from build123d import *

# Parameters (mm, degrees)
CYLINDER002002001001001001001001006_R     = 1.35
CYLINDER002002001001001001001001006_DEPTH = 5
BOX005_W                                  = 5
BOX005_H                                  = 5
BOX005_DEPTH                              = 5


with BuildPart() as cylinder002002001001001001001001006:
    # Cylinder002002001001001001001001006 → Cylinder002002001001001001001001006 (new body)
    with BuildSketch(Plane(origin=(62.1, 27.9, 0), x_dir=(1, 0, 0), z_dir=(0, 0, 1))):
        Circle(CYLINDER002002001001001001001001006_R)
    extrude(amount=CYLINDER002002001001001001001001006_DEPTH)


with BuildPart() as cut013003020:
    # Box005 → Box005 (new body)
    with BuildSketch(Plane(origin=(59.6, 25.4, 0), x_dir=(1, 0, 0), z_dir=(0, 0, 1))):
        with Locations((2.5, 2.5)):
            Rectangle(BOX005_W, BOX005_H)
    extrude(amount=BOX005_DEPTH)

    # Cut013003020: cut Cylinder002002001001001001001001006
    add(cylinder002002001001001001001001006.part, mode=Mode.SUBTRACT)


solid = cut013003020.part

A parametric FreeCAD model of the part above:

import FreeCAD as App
import Part
import Sketcher

V = App.Vector
Q = App.Units.Quantity


def add_polygon(sketch, points):
    """Adds a closed chain of lines whose ends are joined by coincident constraints."""
    first, n = sketch.GeometryCount, len(points)
    for a, b in zip(points, points[1:] + points[:1]):
        sketch.addGeometry(Part.LineSegment(App.Vector(*a, 0), App.Vector(*b, 0)), False)
    for i in range(n):
        sketch.addConstraint(Sketcher.Constraint("Coincident", first + i, 2, first + (i + 1) % n, 1))

doc = App.newDocument("Part")
params = doc.addObject("Spreadsheet::Sheet", "Params")
for row, (alias, value) in enumerate([
    ("sketch1_diameter", "2.7 mm"),
    ("pad1_length", "5 mm"),
    ("sketch2_width", "5 mm"),
    ("pad2_length", "5 mm"),
], start=1):
    params.set(f"A{row}", alias)
    params.set(f"B{row}", "=" + value)
    params.setAlias(f"B{row}", alias)

body = doc.addObject("PartDesign::Body", "Body")

# Sketch on XY plane
sketch1 = body.newObject("Sketcher::SketchObject", "Sketch")
sketch1.AttachmentSupport = (doc.getObject("XY_Plane"), [""])
sketch1.MapMode = "FlatFace"
sketch1.addGeometry(Part.Circle(V(62.1, 27.9, 0), V(0, 0, 1), 1.4), False)
sketch1.addConstraint(Sketcher.Constraint("Diameter", 0, Q("2.7 mm")))
sketch1.addConstraint(Sketcher.Constraint("DistanceX", -1, 1, 0, 3, Q("62.1 mm")))
sketch1.addConstraint(Sketcher.Constraint("DistanceY", -1, 1, 0, 3, Q("27.9 mm")))
sketch1.setExpression("Constraints[0]", "Params.sketch1_diameter")
pad1 = body.newObject("PartDesign::Pad", "Pad")
pad1.Profile = sketch1
pad1.setExpression("Length", "Params.pad1_length")
body2 = doc.addObject("PartDesign::Body", "Body001")

# Sketch on XY plane
sketch2 = body2.newObject("Sketcher::SketchObject", "Sketch001")
sketch2.AttachmentSupport = (doc.getObject("XY_Plane001"), [""])
sketch2.MapMode = "FlatFace"
add_polygon(sketch2, [(59.6, 30.4), (59.6, 25.4), (64.6, 25.4), (64.6, 30.4)])  # lines 0-3
sketch2.addConstraint(Sketcher.Constraint("Vertical", 0))
sketch2.addConstraint(Sketcher.Constraint("Horizontal", 1))
sketch2.addConstraint(Sketcher.Constraint("Vertical", 2))
sketch2.addConstraint(Sketcher.Constraint("Horizontal", 3))
sketch2.addConstraint(Sketcher.Constraint("Equal", 3, 0))
sketch2.addConstraint(Sketcher.Constraint("DistanceX", 1, 1, 1, 2, Q("5 mm")))
sketch2.addConstraint(Sketcher.Constraint("DistanceX", -1, 1, 0, 2, Q("59.6 mm")))
sketch2.addConstraint(Sketcher.Constraint("DistanceY", -1, 1, 0, 2, Q("25.4 mm")))
sketch2.setExpression("Constraints[9]", "Params.sketch2_width")
pad2 = body2.newObject("PartDesign::Pad", "Pad001")
pad2.Profile = sketch2
pad2.setExpression("Length", "Params.pad2_length")
doc.recompute()

boolean = body2.newObject("PartDesign::Boolean", "Boolean")
boolean.Type = "Cut"
boolean.addObjects([body])

doc.recompute()
